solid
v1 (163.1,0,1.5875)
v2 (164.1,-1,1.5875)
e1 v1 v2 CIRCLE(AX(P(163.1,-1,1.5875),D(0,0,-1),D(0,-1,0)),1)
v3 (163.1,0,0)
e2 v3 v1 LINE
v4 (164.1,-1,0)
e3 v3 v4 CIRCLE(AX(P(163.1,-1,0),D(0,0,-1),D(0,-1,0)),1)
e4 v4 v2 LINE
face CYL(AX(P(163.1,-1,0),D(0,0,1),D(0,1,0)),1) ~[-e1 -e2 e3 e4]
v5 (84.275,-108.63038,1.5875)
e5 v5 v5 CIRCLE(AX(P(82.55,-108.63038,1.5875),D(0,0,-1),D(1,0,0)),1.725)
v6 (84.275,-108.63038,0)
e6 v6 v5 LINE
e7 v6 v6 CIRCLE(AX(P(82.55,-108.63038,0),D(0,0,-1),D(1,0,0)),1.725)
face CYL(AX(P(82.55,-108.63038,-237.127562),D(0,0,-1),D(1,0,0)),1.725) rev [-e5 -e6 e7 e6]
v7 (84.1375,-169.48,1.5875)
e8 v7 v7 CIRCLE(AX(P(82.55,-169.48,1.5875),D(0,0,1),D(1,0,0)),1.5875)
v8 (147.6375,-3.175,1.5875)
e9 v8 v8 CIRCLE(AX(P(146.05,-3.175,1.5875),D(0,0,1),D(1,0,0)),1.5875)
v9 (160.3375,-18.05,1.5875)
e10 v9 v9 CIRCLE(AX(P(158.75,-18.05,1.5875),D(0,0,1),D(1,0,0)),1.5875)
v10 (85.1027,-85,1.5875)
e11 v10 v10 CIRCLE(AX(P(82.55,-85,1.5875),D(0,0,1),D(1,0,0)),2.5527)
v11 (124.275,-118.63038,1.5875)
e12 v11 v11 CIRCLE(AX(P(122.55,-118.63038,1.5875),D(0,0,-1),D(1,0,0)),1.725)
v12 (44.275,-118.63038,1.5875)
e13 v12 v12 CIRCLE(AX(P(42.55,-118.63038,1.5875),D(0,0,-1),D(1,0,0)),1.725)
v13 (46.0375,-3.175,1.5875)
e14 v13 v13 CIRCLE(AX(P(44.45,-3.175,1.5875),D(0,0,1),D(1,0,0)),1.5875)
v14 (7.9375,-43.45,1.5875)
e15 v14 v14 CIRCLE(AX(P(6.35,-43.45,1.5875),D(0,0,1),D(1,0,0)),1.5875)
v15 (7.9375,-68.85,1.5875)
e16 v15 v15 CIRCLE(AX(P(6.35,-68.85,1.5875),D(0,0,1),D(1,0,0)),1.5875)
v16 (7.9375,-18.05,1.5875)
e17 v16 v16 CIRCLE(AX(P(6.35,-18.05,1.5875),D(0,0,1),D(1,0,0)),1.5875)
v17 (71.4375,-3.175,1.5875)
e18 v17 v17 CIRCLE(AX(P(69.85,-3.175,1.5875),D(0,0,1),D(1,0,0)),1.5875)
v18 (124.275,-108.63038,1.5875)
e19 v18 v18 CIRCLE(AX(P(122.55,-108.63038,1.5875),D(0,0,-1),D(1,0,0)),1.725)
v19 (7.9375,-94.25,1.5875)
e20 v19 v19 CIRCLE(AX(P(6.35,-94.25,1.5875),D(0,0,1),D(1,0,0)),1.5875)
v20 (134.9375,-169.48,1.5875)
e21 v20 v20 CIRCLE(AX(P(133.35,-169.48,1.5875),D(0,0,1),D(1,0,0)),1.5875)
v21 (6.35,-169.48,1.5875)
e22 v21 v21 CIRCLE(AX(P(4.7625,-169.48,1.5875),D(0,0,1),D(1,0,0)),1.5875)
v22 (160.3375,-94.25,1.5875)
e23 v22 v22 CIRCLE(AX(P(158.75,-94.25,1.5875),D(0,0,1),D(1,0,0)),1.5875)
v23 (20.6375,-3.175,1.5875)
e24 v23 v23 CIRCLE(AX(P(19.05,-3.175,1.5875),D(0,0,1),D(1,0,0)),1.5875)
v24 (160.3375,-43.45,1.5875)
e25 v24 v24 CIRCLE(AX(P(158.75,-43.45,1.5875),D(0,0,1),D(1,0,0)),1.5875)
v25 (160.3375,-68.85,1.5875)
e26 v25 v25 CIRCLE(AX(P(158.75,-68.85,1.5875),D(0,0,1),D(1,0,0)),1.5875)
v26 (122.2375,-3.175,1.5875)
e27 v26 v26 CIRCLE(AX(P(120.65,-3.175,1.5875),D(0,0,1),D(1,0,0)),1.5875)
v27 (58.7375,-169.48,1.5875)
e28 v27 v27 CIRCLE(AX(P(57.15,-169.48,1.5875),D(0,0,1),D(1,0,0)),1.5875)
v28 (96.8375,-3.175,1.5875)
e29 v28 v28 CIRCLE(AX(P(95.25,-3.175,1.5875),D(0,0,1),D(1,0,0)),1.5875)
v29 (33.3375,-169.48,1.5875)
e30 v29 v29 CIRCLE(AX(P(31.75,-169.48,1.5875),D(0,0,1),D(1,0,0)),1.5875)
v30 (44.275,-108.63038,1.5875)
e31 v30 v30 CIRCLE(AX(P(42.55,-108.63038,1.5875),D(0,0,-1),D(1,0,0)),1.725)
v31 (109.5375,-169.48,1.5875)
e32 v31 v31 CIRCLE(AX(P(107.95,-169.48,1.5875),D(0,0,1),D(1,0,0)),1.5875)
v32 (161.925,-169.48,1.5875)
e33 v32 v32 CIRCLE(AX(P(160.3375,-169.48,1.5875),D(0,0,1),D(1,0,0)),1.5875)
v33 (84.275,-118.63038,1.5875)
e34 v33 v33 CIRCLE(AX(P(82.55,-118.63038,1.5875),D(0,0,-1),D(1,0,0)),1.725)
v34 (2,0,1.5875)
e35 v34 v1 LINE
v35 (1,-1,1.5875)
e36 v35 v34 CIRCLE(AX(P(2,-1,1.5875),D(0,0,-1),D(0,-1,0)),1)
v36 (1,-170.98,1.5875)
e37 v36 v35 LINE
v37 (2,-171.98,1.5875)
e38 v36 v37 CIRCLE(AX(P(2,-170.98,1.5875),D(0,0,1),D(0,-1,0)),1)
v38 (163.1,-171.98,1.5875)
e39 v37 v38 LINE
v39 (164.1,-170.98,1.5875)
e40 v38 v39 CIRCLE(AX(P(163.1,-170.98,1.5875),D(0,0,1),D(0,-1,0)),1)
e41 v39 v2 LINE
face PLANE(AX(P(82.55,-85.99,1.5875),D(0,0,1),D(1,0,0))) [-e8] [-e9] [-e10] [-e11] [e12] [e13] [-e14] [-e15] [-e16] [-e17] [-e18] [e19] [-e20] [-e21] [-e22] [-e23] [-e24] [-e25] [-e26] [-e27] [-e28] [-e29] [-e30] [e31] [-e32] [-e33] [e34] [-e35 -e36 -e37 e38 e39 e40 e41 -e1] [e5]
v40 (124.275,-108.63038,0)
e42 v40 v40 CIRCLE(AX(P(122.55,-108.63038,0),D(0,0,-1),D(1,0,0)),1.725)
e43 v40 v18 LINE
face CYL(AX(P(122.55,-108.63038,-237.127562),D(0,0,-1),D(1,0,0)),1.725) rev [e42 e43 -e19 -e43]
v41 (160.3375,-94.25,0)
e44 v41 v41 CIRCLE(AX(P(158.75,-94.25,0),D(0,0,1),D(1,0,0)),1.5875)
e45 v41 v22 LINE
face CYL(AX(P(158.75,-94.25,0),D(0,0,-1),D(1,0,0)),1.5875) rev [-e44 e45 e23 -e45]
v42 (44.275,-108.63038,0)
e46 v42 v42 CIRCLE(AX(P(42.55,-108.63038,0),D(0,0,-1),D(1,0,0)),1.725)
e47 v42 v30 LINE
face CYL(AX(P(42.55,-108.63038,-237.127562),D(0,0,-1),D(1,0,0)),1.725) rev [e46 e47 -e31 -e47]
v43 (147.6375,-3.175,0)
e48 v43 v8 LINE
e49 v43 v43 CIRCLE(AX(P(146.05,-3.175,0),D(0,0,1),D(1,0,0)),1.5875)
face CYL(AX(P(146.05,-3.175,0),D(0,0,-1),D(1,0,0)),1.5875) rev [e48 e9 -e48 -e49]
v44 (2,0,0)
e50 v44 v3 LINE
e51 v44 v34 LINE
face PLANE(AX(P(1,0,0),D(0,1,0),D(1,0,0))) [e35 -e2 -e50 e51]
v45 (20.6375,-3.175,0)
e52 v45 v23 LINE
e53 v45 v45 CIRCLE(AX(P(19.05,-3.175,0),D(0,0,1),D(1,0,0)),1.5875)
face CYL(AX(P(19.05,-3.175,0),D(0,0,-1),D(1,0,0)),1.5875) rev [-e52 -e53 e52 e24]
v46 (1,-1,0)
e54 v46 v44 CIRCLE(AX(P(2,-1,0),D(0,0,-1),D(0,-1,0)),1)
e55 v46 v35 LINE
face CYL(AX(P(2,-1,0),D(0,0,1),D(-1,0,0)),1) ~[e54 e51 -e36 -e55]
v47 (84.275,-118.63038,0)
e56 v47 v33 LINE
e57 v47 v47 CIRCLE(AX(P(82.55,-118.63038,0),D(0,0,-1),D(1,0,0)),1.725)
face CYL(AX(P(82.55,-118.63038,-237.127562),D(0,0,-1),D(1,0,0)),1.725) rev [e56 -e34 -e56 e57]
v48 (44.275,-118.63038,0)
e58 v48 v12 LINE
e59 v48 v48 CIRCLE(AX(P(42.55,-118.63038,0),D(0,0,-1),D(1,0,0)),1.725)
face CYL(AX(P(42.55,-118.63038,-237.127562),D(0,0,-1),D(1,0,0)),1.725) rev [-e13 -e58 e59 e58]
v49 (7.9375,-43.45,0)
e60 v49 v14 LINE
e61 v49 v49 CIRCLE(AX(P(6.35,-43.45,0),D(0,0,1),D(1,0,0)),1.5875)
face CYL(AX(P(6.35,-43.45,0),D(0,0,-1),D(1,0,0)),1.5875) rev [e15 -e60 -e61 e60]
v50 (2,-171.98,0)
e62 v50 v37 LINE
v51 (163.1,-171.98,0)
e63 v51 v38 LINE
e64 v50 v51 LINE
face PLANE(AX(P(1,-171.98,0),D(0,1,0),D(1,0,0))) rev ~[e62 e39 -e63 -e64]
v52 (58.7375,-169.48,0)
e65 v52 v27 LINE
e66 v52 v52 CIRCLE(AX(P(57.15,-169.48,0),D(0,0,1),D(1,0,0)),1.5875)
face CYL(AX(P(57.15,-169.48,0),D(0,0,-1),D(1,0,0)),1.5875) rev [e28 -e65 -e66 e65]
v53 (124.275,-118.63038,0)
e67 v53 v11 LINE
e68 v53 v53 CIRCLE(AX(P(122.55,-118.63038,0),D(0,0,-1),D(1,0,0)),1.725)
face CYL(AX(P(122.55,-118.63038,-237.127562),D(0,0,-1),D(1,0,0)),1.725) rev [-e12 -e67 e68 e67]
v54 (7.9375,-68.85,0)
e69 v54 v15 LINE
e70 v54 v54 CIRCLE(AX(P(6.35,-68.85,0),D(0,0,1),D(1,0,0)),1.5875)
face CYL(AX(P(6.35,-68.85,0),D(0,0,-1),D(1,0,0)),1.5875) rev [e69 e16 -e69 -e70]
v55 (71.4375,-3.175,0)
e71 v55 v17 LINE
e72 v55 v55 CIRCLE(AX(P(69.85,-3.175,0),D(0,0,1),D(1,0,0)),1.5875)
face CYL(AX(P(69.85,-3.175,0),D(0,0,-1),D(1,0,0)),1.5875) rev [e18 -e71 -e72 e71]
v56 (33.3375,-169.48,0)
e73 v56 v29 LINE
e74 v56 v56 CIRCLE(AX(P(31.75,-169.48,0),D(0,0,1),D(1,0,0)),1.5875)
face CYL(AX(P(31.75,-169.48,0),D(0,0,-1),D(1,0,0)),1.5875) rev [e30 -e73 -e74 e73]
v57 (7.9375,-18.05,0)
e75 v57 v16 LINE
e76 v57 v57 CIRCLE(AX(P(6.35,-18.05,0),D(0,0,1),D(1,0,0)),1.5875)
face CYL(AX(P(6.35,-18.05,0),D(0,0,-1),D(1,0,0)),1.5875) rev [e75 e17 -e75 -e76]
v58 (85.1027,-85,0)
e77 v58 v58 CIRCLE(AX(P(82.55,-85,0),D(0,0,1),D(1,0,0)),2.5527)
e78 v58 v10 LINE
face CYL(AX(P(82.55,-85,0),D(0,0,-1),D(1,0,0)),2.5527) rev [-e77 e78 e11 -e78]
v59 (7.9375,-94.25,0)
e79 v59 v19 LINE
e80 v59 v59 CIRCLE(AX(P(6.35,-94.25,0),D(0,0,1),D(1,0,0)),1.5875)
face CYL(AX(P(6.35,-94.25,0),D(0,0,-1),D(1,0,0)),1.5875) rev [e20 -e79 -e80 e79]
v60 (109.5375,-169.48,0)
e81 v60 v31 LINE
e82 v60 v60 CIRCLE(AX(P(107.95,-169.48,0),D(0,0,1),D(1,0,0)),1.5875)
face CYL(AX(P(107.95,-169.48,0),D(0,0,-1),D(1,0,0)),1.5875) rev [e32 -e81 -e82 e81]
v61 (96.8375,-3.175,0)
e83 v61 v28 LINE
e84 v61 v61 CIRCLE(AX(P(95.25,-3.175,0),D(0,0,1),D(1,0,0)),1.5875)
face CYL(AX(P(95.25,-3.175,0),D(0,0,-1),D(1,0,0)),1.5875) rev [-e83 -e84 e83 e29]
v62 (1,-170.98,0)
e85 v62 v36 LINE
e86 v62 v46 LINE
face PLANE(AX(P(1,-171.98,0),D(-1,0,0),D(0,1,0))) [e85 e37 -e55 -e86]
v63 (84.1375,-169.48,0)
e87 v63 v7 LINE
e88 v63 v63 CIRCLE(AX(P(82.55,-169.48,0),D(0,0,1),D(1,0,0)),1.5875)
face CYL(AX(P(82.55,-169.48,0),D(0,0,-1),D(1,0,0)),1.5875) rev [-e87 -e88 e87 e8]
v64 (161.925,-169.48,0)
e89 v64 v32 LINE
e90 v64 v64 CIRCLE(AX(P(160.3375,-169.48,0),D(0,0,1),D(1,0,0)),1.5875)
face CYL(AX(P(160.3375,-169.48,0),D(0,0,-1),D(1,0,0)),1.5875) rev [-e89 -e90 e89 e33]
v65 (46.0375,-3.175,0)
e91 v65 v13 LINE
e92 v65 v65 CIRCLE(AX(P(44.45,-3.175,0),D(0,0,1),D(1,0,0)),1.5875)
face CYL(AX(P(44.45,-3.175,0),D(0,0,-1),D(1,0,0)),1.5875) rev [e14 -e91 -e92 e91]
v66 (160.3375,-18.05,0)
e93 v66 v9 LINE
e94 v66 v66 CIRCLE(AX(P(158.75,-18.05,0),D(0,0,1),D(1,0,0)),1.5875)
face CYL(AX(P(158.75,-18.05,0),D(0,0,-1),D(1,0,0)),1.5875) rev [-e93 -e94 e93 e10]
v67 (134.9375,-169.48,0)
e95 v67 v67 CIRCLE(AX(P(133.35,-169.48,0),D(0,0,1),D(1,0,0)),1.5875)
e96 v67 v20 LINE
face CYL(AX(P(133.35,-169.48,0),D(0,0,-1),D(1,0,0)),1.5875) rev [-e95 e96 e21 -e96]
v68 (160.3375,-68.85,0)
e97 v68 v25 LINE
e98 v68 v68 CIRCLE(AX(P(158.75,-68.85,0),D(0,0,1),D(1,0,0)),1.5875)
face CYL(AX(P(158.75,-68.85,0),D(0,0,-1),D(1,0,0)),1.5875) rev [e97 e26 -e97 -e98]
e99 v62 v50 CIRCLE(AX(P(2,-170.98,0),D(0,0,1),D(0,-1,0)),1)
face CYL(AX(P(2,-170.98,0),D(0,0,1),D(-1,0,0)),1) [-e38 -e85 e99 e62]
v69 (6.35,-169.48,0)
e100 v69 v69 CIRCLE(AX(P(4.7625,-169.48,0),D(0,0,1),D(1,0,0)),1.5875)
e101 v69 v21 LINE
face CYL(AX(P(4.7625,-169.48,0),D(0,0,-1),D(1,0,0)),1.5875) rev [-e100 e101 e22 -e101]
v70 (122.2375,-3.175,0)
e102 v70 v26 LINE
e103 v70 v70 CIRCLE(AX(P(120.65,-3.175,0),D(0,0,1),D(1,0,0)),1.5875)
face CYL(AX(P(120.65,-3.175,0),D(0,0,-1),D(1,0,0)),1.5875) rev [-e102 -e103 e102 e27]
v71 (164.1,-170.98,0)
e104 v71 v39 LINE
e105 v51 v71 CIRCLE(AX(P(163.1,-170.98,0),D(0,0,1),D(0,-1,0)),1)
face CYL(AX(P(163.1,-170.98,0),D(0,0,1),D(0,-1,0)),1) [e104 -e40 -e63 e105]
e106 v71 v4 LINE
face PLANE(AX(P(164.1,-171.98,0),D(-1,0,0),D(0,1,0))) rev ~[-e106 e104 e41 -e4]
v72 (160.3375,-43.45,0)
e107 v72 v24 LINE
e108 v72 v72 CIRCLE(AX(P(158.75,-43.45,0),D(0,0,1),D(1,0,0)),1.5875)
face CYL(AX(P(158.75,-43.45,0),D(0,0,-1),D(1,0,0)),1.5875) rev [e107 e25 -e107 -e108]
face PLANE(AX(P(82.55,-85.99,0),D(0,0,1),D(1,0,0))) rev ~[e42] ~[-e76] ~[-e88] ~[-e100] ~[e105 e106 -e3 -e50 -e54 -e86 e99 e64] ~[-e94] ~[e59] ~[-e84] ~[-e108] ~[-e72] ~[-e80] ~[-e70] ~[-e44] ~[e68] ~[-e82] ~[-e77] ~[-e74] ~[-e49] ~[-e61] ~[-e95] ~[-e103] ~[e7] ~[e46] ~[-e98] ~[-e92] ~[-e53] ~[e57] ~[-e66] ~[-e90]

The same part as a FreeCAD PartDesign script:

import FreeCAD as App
import Part
import Sketcher
Q = App.Units.Quantity


def edges_at(feature, points):
    """Names of the edges that pass closest to the given points."""
    edges = feature.Shape.Edges
    near = lambda p: min(range(len(edges)), key=lambda i: edges[i].distToShape(Part.Vertex(*p))[0])
    return sorted({f"Edge{near(p) + 1}" for p in points})


def add_polygon(sketch, points):
    """Adds a closed chain of lines whose ends are joined by coincident constraints."""
    first, n = sketch.GeometryCount, len(points)
    for a, b in zip(points, points[1:] + points[:1]):
        sketch.addGeometry(Part.LineSegment(App.Vector(*a, 0), App.Vector(*b, 0)), False)
    for i in range(n):
        sketch.addConstraint(Sketcher.Constraint("Coincident", first + i, 2, first + (i + 1) % n, 1))

doc = App.newDocument("Part")
body = doc.addObject("PartDesign::Body", "Body")

sketch1 = doc.addObject("Sketcher::SketchObject", "Sketch")
body.addObject(sketch1)
sketch1.AttachmentSupport = (doc.XY_Plane, [""])
sketch1.MapMode = "FlatFace"
add_polygon(sketch1, [(1, 0), (1, -172), (164.1, -172), (164.1, 0)])
sketch1.addGeometry(Part.Circle(App.Vector(4.8, -169.5, 0), App.Vector(0, 0, 1), 1.6), False)
sketch1.addGeometry(Part.Circle(App.Vector(31.8, -169.5, 0), App.Vector(0, 0, 1), 1.6), False)
sketch1.addGeometry(Part.Circle(App.Vector(57.1, -169.5, 0), App.Vector(0, 0, 1), 1.6), False)
sketch1.addGeometry(Part.Circle(App.Vector(6.3, -94.2, 0), App.Vector(0, 0, 1), 1.6), False)
sketch1.addGeometry(Part.Circle(App.Vector(82.5, -169.5, 0), App.Vector(0, 0, 1), 1.6), False)
sketch1.addGeometry(Part.Circle(App.Vector(108, -169.5, 0), App.Vector(0, 0, 1), 1.6), False)
sketch1.addGeometry(Part.Circle(App.Vector(133.3, -169.5, 0), App.Vector(0, 0, 1), 1.6), False)
sketch1.addGeometry(Part.Circle(App.Vector(160.3, -169.5, 0), App.Vector(0, 0, 1), 1.6), False)
sketch1.addGeometry(Part.Circle(App.Vector(158.8, -94.2, 0), App.Vector(0, 0, 1), 1.6), False)
sketch1.addGeometry(Part.Circle(App.Vector(6.3, -68.8, 0), App.Vector(0, 0, 1), 1.6), False)
sketch1.addGeometry(Part.Circle(App.Vector(6.3, -43.5, 0), App.Vector(0, 0, 1), 1.6), False)
sketch1.addGeometry(Part.Circle(App.Vector(6.3, -18.1, 0), App.Vector(0, 0, 1), 1.6), False)
sketch1.addGeometry(Part.Circle(App.Vector(19.1, -3.2, 0), App.Vector(0, 0, 1), 1.6), False)
sketch1.addGeometry(Part.Circle(App.Vector(44.5, -3.2, 0), App.Vector(0, 0, 1), 1.6), False)
sketch1.addGeometry(Part.Circle(App.Vector(69.8, -3.2, 0), App.Vector(0, 0, 1), 1.6), False)
sketch1.addGeometry(Part.Circle(App.Vector(82.5, -85, 0), App.Vector(0, 0, 1), 2.6), False)
sketch1.addGeometry(Part.Circle(App.Vector(158.8, -68.8, 0), App.Vector(0, 0, 1), 1.6), False)
sketch1.addGeometry(Part.Circle(App.Vector(95.2, -3.2, 0), App.Vector(0, 0, 1), 1.6), False)
sketch1.addGeometry(Part.Circle(App.Vector(120.7, -3.2, 0), App.Vector(0, 0, 1), 1.6), False)
sketch1.addGeometry(Part.Circle(App.Vector(158.8, -43.5, 0), App.Vector(0, 0, 1), 1.6), False)
sketch1.addGeometry(Part.Circle(App.Vector(158.8, -18.1, 0), App.Vector(0, 0, 1), 1.6), False)
sketch1.addGeometry(Part.Circle(App.Vector(146.1, -3.2, 0), App.Vector(0, 0, 1), 1.6), False)
sketch1.addConstraint([
    Sketcher.Constraint("Vertical", 0),
    Sketcher.Constraint("Horizontal", 1),
    Sketcher.Constraint("Vertical", 2),
    Sketcher.Constraint("Horizontal", 3),
    Sketcher.Constraint("Equal", 4, 5),
    Sketcher.Constraint("Equal", 5, 6),
    Sketcher.Constraint("Equal", 6, 7),
    Sketcher.Constraint("Equal", 7, 8),
    Sketcher.Constraint("Equal", 8, 9),
    Sketcher.Constraint("Equal", 9, 10),
    Sketcher.Constraint("Equal", 10, 11),
    Sketcher.Constraint("Equal", 11, 12),
    Sketcher.Constraint("Equal", 12, 13),
    Sketcher.Constraint("Equal", 13, 14),
    Sketcher.Constraint("Equal", 14, 15),
    Sketcher.Constraint("Equal", 15, 16),
    Sketcher.Constraint("Equal", 16, 17),
    Sketcher.Constraint("Equal", 17, 18),
    Sketcher.Constraint("Equal", 18, 20),
    Sketcher.Constraint("Equal", 20, 21),
    Sketcher.Constraint("Equal", 21, 22),
    Sketcher.Constraint("Equal", 22, 23),
    Sketcher.Constraint("Equal", 23, 24),
    Sketcher.Constraint("Equal", 24, 25),
    Sketcher.Constraint("PointOnObject", 2, 2, -1),
    Sketcher.Constraint("Horizontal", 4, 3, 5, 3),
    Sketcher.Constraint("Horizontal", 5, 3, 6, 3),
    Sketcher.Constraint("Horizontal", 6, 3, 8, 3),
    Sketcher.Constraint("Horizontal", 8, 3, 9, 3),
    Sketcher.Constraint("Horizontal", 9, 3, 10, 3),
    Sketcher.Constraint("Horizontal", 10, 3, 11, 3),
    Sketcher.Constraint("Horizontal", 7, 3, 12, 3),
    Sketcher.Constraint("Horizontal", 16, 3, 17, 3),
    Sketcher.Constraint("Horizontal", 17, 3, 18, 3),
    Sketcher.Constraint("Horizontal", 13, 3, 20, 3),
    Sketcher.Constraint("Horizontal", 18, 3, 21, 3),
    Sketcher.Constraint("Horizontal", 21, 3, 22, 3),
    Sketcher.Constraint("Horizontal", 14, 3, 23, 3),
    Sketcher.Constraint("Horizontal", 15, 3, 24, 3),
    Sketcher.Constraint("Horizontal", 22, 3, 25, 3),
    Sketcher.Constraint("Vertical", 7, 3, 13, 3),
    Sketcher.Constraint("Vertical", 13, 3, 14, 3),
    Sketcher.Constraint("Vertical", 14, 3, 15, 3),
    Sketcher.Constraint("Vertical", 8, 3, 19, 3),
    Sketcher.Constraint("Vertical", 12, 3, 20, 3),
    Sketcher.Constraint("Vertical", 20, 3, 23, 3),
    Sketcher.Constraint("Vertical", 23, 3, 24, 3),
    Sketcher.Constraint("Diameter", 4, Q("0.125 in")),
    Sketcher.Constraint("Diameter", 19, Q("0.201 in")),
    Sketcher.Constraint("DistanceX", 5, 3, 6, 3, Q("1 in")),
    Sketcher.Constraint("DistanceX", 7, 3, 5, 3, Q("1 in")),
    Sketcher.Constraint("DistanceX", 6, 3, 8, 3, Q("1 in")),
    Sketcher.Constraint("DistanceX", 8, 3, 9, 3, Q("1 in")),
    Sketcher.Constraint("DistanceX", 9, 3, 10, 3, Q("1 in")),
    Sketcher.Constraint("DistanceX", 10, 3, 12, 3, Q("1 in")),
    Sketcher.Constraint("DistanceY", 7, 3, 13, 3, Q("1 in")),
    Sketcher.Constraint("DistanceY", 13, 3, 14, 3, Q("1 in")),
    Sketcher.Constraint("DistanceY", 14, 3, 15, 3, Q("1 in")),
    Sketcher.Constraint("DistanceX", 16, 3, 17, 3, Q("1 in")),
    Sketcher.Constraint("DistanceX", 17, 3, 18, 3, Q("1 in")),
    Sketcher.Constraint("DistanceX", 18, 3, 21, 3, Q("1 in")),
    Sketcher.Constraint("DistanceX", 21, 3, 22, 3, Q("1 in")),
    Sketcher.Constraint("DistanceX", 22, 3, 25, 3, Q("1 in")),
    Sketcher.Constraint("DistanceX", 15, 3, 16, 3, Q("0.5 in")),
    Sketcher.Constraint("DistanceX", -1, 1, 5, 3, Q("1.25 in")),
    Sketcher.Constraint("DistanceX", -1, 1, 4, 3, Q("0.1875 in")),
    Sketcher.Constraint("DistanceX", -1, 1, 11, 3, Q("6.3125 in")),
    Sketcher.Constraint("DistanceY", 16, 3, -1, 1, Q("0.125 in")),
    Sketcher.Constraint("DistanceX", 1, 1, 1, 2, 163.1),
    Sketcher.Constraint("DistanceY", 0, 2, 0, 1, 171.98),
    Sketcher.Constraint("DistanceY", 4, 3, -1, 1, 169.48),
    Sketcher.Constraint("DistanceY", 7, 3, -1, 1, 94.25),
    Sketcher.Constraint("DistanceY", 19, 3, -1, 1, 85.0),
    Sketcher.Constraint("DistanceX", -1, 1, 0, 2, 1.0),
])
pad1 = doc.addObject("PartDesign::Pad", "Pad")
body.addObject(pad1)
pad1.Profile = sketch1
pad1.Length = Q("0.0625 in")
doc.recompute()

fillet = doc.addObject("PartDesign::Fillet", "Fillet")
body.addObject(fillet)
fillet.Base = (pad1, edges_at(pad1, [
    (1, -171.98, 0.794),
    (1, 0, 0.794),
    (164.1, 0, 0.794),
    (164.1, -171.98, 0.794),
]))
fillet.Radius = 1

sketch2 = doc.addObject("Sketcher::SketchObject", "Sketch001")
body.addObject(sketch2)
sketch2.AttachmentSupport = (doc.XY_Plane, [""])
sketch2.MapMode = "FlatFace"
sketch2.AttachmentOffset = App.Placement(App.Vector(0, 0, 0.0625 * 25.4), App.Rotation())
sketch2.addGeometry([
    Part.Circle(App.Vector(42.5, -108.6, 0), App.Vector(0, 0, 1), 1.7),
    Part.Circle(App.Vector(82.5, -108.6, 0), App.Vector(0, 0, 1), 1.7),
    Part.Circle(App.Vector(122.5, -108.6, 0), App.Vector(0, 0, 1), 1.7),
    Part.Circle(App.Vector(42.5, -118.6, 0), App.Vector(0, 0, 1), 1.7),
    Part.Circle(App.Vector(82.5, -118.6, 0), App.Vector(0, 0, 1), 1.7),
    Part.Circle(App.Vector(122.5, -118.6, 0), App.Vector(0, 0, 1), 1.7),
], False)
sketch2.addConstraint([
    Sketcher.Constraint("Equal", 0, 1),
    Sketcher.Constraint("Equal", 1, 2),
    Sketcher.Constraint("Equal", 2, 3),
    Sketcher.Constraint("Equal", 3, 4),
    Sketcher.Constraint("Equal", 4, 5),
    Sketcher.Constraint("Horizontal", 0, 3, 1, 3),
    Sketcher.Constraint("Horizontal", 1, 3, 2, 3),
    Sketcher.Constraint("Horizontal", 3, 3, 4, 3),
    Sketcher.Constraint("Horizontal", 4, 3, 5, 3),
    Sketcher.Constraint("Vertical", 0, 3, 3, 3),
    Sketcher.Constraint("Vertical", 1, 3, 4, 3),
    Sketcher.Constraint("Vertical", 2, 3, 5, 3),
    Sketcher.Constraint("Diameter", 0, 3.45),
    Sketcher.Constraint("DistanceX", -1, 1, 1, 3, Q("3.25 in")),
    Sketcher.Constraint("DistanceX", -1, 1, 0, 3, 42.55),
    Sketcher.Constraint("DistanceX", -1, 1, 2, 3, 122.55),
    Sketcher.Constraint("DistanceY", 3, 3, 0, 3, 10.0),
    Sketcher.Constraint("DistanceY", 0, 3, -1, 1, 108.63038),
])
pocket1 = doc.addObject("PartDesign::Pocket", "Pocket")
body.addObject(pocket1)
pocket1.Profile = sketch2
pocket1.Type = "ThroughAll"
pocket1.Midplane = True

doc.recompute()
